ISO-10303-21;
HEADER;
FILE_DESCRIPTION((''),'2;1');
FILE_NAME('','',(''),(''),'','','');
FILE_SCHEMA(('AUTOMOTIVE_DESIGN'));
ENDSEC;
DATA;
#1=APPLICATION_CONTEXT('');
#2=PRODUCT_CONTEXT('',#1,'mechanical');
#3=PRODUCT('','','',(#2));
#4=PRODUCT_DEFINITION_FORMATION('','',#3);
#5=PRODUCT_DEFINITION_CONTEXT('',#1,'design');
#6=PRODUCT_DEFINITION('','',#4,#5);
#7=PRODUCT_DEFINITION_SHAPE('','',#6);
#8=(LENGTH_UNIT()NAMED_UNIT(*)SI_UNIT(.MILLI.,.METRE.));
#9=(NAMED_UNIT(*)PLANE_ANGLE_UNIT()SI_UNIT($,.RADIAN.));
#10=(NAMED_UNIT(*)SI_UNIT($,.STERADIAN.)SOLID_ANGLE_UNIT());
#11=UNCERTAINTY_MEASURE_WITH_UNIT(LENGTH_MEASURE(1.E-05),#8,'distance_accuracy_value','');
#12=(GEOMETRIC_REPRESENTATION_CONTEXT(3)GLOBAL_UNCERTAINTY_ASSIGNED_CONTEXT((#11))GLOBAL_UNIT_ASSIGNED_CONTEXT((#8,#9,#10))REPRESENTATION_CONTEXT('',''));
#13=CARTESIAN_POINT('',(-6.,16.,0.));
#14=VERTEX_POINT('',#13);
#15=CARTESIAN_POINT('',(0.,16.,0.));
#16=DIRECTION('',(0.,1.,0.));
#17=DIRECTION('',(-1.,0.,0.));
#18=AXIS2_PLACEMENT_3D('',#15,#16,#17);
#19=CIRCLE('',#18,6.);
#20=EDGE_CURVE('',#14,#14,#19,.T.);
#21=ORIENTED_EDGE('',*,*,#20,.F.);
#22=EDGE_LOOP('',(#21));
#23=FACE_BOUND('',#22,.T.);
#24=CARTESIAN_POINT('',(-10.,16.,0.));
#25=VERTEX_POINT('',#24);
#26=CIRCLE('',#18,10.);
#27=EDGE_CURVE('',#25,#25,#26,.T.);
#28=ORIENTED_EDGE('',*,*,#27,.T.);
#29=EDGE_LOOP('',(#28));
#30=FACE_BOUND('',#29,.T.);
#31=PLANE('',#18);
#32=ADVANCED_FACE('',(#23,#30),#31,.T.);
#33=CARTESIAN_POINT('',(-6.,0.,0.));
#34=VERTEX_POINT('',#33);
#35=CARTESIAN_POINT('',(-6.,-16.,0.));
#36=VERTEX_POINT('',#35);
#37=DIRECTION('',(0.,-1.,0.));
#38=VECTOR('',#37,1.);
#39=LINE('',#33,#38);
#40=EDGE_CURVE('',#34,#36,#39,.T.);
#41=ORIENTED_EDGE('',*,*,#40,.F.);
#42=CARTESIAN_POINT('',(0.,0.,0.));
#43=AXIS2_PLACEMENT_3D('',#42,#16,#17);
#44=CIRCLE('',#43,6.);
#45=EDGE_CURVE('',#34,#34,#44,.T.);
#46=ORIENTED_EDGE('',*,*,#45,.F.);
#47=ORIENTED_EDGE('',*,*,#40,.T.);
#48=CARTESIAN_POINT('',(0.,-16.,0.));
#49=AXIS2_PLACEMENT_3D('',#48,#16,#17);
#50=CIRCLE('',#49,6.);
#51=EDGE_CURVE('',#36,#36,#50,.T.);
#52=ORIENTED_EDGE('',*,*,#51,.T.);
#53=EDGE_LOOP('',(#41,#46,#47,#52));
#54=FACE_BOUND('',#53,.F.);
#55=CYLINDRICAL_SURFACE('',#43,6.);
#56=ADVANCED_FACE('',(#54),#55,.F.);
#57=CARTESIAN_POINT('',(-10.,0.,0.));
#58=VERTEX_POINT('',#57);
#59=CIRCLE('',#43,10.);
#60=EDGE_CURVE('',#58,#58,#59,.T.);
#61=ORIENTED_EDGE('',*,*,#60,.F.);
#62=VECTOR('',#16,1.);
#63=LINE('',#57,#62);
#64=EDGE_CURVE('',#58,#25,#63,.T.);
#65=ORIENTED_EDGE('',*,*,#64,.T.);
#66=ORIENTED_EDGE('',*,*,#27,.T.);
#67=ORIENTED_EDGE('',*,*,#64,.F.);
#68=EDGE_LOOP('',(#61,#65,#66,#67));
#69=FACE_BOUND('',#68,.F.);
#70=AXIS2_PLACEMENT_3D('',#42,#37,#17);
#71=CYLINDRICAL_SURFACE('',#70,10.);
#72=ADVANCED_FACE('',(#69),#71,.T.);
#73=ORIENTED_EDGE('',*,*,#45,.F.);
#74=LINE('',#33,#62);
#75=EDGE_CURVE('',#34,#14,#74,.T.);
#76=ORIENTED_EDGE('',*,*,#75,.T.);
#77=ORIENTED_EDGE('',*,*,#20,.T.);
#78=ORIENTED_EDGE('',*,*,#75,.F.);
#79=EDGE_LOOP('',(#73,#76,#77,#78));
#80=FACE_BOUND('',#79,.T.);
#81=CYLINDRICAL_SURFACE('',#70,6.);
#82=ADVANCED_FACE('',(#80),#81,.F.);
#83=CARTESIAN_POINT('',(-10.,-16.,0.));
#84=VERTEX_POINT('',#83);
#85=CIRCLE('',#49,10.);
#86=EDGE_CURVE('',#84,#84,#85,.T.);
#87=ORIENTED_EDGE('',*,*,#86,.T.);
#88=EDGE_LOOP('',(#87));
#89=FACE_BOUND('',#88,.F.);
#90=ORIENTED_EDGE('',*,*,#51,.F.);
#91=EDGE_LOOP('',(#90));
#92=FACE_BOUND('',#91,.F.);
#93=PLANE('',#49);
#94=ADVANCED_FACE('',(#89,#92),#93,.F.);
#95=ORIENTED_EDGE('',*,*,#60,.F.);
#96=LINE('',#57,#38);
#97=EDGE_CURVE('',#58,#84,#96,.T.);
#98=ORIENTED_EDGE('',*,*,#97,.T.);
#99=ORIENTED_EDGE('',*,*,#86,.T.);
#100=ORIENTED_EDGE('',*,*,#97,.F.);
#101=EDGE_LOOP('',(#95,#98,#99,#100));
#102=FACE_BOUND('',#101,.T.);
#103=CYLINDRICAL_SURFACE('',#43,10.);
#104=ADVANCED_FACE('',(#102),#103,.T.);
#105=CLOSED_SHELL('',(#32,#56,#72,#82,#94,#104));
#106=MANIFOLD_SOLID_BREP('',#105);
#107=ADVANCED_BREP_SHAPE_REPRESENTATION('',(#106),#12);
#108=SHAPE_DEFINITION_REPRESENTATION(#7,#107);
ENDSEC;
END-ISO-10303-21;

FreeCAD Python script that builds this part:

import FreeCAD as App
import Part
import Sketcher
Q = App.Units.Quantity

doc = App.newDocument("Part")
body = doc.addObject("PartDesign::Body", "Body")

sketch1 = body.newObject("Sketcher::SketchObject", "Sketch")
sketch1.AttachmentSupport = (doc.getObject("XZ_Plane"), [""])
sketch1.MapMode = "FlatFace"
sketch1.addGeometry(Part.Circle(App.Vector(0, 0, 0), App.Vector(0, 0, 1), 10), False)
sketch1.addGeometry(Part.Circle(App.Vector(0, 0, 0), App.Vector(0, 0, 1), 6), False)
sketch1.addConstraint(Sketcher.Constraint("Coincident", 0, 3, -1, 1))
sketch1.addConstraint(Sketcher.Constraint("Coincident", 1, 3, -1, 1))
sketch1.addConstraint(Sketcher.Constraint("Diameter", 0, Q("20 mm")))
sketch1.addConstraint(Sketcher.Constraint("Diameter", 1, Q("12 mm")))
pad1 = body.newObject("PartDesign::Pad", "Pad")
pad1.Profile = sketch1
pad1.Length = 32
pad1.Midplane = True

doc.recompute()
